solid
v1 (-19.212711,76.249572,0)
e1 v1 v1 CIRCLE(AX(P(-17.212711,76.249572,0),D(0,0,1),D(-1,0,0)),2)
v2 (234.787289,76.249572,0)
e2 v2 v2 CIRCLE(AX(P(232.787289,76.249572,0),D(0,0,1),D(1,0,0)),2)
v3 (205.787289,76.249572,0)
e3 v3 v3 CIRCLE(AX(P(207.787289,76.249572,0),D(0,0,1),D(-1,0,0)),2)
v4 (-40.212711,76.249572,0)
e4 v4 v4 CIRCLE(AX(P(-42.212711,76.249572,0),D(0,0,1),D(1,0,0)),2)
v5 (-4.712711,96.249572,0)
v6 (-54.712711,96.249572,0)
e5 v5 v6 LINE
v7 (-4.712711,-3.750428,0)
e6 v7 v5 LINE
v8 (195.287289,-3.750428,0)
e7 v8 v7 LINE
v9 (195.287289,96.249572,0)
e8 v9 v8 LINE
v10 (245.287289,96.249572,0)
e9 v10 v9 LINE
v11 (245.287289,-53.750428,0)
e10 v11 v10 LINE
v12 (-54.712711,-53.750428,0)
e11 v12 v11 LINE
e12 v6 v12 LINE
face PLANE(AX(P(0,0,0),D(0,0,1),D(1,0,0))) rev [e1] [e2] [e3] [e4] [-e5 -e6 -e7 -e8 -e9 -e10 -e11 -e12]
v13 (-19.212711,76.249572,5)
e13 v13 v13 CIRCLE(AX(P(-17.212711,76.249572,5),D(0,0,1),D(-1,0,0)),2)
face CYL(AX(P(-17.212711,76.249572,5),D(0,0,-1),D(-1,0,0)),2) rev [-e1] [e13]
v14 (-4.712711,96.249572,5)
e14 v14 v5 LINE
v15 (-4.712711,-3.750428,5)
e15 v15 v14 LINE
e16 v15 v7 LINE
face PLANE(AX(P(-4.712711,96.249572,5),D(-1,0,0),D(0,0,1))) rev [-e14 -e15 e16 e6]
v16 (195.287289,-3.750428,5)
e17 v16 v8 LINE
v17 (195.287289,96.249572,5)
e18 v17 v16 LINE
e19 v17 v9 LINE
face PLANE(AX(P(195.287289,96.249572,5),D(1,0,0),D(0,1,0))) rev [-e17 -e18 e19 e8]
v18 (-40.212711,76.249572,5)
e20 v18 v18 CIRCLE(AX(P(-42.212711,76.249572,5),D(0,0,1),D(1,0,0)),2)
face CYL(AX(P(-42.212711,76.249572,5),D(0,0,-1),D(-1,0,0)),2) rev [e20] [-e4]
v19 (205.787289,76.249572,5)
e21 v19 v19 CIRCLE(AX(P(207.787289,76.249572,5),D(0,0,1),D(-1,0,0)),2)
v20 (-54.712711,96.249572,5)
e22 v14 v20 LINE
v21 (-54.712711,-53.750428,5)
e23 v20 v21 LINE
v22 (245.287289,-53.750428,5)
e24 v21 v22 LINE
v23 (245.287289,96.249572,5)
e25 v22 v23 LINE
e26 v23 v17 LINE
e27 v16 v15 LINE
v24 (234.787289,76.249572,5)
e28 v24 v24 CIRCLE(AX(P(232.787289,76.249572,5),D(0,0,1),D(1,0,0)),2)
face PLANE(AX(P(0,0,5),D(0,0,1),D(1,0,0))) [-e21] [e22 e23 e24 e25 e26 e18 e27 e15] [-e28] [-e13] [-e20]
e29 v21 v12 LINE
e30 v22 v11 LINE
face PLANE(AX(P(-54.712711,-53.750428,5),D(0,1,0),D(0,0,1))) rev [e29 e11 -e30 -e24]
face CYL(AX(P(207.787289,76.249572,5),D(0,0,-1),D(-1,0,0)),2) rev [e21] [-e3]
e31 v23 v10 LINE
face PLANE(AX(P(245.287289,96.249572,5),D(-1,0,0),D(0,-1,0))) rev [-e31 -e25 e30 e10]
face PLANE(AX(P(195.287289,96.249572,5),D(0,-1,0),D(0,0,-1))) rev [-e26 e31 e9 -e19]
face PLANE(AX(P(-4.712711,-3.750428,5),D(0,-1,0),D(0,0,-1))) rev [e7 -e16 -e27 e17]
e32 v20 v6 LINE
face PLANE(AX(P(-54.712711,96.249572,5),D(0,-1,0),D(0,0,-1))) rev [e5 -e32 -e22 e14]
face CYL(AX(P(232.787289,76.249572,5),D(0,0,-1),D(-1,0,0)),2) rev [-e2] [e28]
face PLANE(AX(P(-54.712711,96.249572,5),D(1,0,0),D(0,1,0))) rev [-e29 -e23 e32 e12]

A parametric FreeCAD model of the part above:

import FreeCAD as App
import Part
import Sketcher
from FreeCAD import Vector


def add_polygon(sketch, points):
    """Adds a closed chain of lines whose ends are joined by coincident constraints."""
    first, n = sketch.GeometryCount, len(points)
    for a, b in zip(points, points[1:] + points[:1]):
        sketch.addGeometry(Part.LineSegment(App.Vector(*a, 0), App.Vector(*b, 0)), False)
    for i in range(n):
        sketch.addConstraint(Sketcher.Constraint("Coincident", first + i, 2, first + (i + 1) % n, 1))

doc = App.newDocument("Part")
body = doc.addObject("PartDesign::Body", "Body")

sketch1 = body.newObject("Sketcher::SketchObject", "Sketch")
sketch1.AttachmentSupport = (doc.getObject("XY_Plane"), [""])
sketch1.MapMode = "FlatFace"
add_polygon(sketch1, [(-4.712711, 96.249572), (-54.712711, 96.249572), (-54.712711, -53.750428), (245.287289, -53.750428), (245.287289, 96.249572), (195.287289, 96.249572), (195.287289, -3.750428), (-4.712711, -3.750428)])
sketch1.addGeometry(Part.Circle(Vector(232.787289, 76.249572, 0), Vector(0, 0, 1), 2), False)
sketch1.addGeometry(Part.Circle(Vector(207.787289, 76.249572, 0), Vector(0, 0, 1), 2), False)
sketch1.addGeometry(Part.Circle(Vector(-17.212711, 76.249572, 0), Vector(0, 0, 1), 2), False)
sketch1.addGeometry(Part.Circle(Vector(-42.212711, 76.249572, 0), Vector(0, 0, 1), 2), False)
sketch1.addConstraint([
    Sketcher.Constraint("Horizontal", 0),
    Sketcher.Constraint("Vertical", 1),
    Sketcher.Constraint("Horizontal", 2),
    Sketcher.Constraint("Vertical", 3),
    Sketcher.Constraint("Horizontal", 4),
    Sketcher.Constraint("Vertical", 5),
    Sketcher.Constraint("Horizontal", 6),
    Sketcher.Constraint("Vertical", 7),
    Sketcher.Constraint("Equal", 8, 9),
    Sketcher.Constraint("Equal", 9, 10),
    Sketcher.Constraint("Equal", 10, 11),
    Sketcher.Constraint("Horizontal", 8, 3, 9, 3),
    Sketcher.Constraint("Horizontal", 9, 3, 10, 3),
    Sketcher.Constraint("Horizontal", 10, 3, 11, 3),
    Sketcher.Constraint("Horizontal", 0, 2, 3, 2),
    Sketcher.Constraint("Equal", 0, 4),
    Sketcher.Constraint("Diameter", 8, 4.0),
    Sketcher.Constraint("DistanceX", 0, 2, 0, 1, 50.0),
    Sketcher.Constraint("DistanceX", 2, 1, 2, 2, 300.0),
    Sketcher.Constraint("DistanceY", 1, 2, 1, 1, 150.0),
    Sketcher.Constraint("DistanceY", 5, 2, 5, 1, 100.0),
    Sketcher.Constraint("DistanceX", 9, 3, 8, 3, 25.0),
    Sketcher.Constraint("DistanceX", 10, 3, 9, 3, 225.0),
    Sketcher.Constraint("DistanceX", 11, 3, 10, 3, 25.0),
    Sketcher.Constraint("DistanceY", 11, 3, 0, 2, 20.0),
    Sketcher.Constraint("DistanceX", 0, 2, 11, 3, 12.5),
    Sketcher.Constraint("DistanceX", -1, 1, 8, 3, 232.787289),
    Sketcher.Constraint("DistanceY", -1, 1, 8, 3, 76.249572),
])
pad1 = body.newObject("PartDesign::Pad", "Pad")
pad1.Profile = sketch1
pad1.Length = 5

doc.recompute()
